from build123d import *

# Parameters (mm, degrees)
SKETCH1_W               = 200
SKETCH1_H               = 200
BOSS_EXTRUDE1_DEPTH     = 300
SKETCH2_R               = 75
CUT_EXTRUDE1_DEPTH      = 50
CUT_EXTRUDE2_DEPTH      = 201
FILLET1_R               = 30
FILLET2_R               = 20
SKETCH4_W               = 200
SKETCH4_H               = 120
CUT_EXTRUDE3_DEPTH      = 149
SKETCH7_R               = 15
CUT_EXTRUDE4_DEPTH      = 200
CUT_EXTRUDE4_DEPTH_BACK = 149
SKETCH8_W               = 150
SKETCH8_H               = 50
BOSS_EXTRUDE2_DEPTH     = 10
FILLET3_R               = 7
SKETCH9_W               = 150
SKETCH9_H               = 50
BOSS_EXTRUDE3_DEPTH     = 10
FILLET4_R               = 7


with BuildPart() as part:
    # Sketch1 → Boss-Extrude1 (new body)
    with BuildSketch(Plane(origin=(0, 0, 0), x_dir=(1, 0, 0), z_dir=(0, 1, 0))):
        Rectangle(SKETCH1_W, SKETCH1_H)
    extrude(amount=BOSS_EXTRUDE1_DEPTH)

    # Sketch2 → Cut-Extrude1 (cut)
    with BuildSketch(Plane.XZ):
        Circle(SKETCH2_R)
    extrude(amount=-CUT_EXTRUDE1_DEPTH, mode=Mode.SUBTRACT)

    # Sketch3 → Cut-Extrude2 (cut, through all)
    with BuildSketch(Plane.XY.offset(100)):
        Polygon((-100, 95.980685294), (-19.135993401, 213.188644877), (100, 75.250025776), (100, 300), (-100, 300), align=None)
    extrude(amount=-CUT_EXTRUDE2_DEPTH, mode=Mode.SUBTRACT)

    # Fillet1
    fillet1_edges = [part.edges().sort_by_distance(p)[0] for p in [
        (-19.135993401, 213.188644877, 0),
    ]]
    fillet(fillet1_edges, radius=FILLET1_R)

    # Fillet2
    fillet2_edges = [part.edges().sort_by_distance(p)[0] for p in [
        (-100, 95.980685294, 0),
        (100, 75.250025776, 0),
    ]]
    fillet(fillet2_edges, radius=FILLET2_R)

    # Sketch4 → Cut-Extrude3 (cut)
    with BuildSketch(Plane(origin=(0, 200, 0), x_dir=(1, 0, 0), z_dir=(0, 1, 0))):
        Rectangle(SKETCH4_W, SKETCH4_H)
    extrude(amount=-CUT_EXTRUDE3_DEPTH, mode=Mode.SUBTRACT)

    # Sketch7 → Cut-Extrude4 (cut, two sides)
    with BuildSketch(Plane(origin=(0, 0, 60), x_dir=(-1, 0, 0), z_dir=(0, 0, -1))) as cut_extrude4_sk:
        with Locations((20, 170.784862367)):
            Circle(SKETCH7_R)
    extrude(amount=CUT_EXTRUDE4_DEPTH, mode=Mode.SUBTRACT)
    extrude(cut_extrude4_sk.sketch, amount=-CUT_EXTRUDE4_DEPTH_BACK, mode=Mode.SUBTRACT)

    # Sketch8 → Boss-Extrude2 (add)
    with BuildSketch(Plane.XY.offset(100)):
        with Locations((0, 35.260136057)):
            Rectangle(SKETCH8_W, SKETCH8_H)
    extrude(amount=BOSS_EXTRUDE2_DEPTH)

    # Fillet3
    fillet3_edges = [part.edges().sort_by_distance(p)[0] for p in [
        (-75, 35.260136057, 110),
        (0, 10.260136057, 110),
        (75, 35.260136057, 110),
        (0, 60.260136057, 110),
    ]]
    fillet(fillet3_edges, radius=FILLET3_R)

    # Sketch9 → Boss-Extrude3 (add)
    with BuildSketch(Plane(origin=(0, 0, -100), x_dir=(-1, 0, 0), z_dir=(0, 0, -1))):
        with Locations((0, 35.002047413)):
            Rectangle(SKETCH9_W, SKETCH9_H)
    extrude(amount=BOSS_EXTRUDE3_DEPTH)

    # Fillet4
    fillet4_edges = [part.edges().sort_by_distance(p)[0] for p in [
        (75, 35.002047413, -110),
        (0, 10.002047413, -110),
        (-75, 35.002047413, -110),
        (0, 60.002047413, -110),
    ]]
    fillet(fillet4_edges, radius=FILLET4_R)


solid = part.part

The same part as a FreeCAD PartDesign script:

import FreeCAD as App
import Part
import Sketcher
from FreeCAD import Vector
Q = App.Units.Quantity


def edges_at(feature, points):
    """Names of the edges that pass closest to the given points."""
    edges = feature.Shape.Edges
    near = lambda p: min(range(len(edges)), key=lambda i: edges[i].distToShape(Part.Vertex(*p))[0])
    return sorted({f"Edge{near(p) + 1}" for p in points})

doc = App.newDocument("Part")
body = doc.addObject("PartDesign::Body", "Body")

# Sketch on XZ plane
sketch1 = body.newObject("Sketcher::SketchObject", "Sketch")
sketch1.AttachmentSupport = (doc.getObject("XZ_Plane"), [""])
sketch1.MapMode = "FlatFace"
sketch1.addGeometry(Part.LineSegment(Vector(-100, -100, 0), Vector(-100, 100, 0)), False)
sketch1.addGeometry(Part.LineSegment(Vector(-100, 100, 0), Vector(100, 100, 0)), False)
sketch1.addGeometry(Part.LineSegment(Vector(100, 100, 0), Vector(100, -100, 0)), False)
sketch1.addGeometry(Part.LineSegment(Vector(100, -100, 0), Vector(-100, -100, 0)), False)
sketch1.addConstraint(Sketcher.Constraint("Coincident", 0, 2, 1, 1))
sketch1.addConstraint(Sketcher.Constraint("Coincident", 1, 2, 2, 1))
sketch1.addConstraint(Sketcher.Constraint("Coincident", 2, 2, 3, 1))
sketch1.addConstraint(Sketcher.Constraint("Coincident", 3, 2, 0, 1))
sketch1.addConstraint(Sketcher.Constraint("Vertical", 0))
sketch1.addConstraint(Sketcher.Constraint("Horizontal", 1))
sketch1.addConstraint(Sketcher.Constraint("Vertical", 2))
sketch1.addConstraint(Sketcher.Constraint("Horizontal", 3))
sketch1.addConstraint(Sketcher.Constraint("Symmetric", 0, 2, 2, 2, -1, 1))
sketch1.addConstraint(Sketcher.Constraint("Equal", 3, 0))
sketch1.addConstraint(Sketcher.Constraint("DistanceX", 1, 1, 1, 2, Q("200 mm")))
pad1 = body.newObject("PartDesign::Pad", "Pad")
pad1.Profile = sketch1
pad1.Length = 300
pad1.Reversed = True

# Sketch on XZ plane
sketch2 = body.newObject("Sketcher::SketchObject", "Sketch001")
sketch2.AttachmentSupport = (doc.getObject("XZ_Plane"), [""])
sketch2.MapMode = "FlatFace"
sketch2.addGeometry(Part.Circle(Vector(0, 0, 0), Vector(0, 0, 1), 75), False)
sketch2.addConstraint(Sketcher.Constraint("Coincident", 0, 3, -1, 1))
sketch2.addConstraint(Sketcher.Constraint("Diameter", 0, Q("150 mm")))
pocket1 = body.newObject("PartDesign::Pocket", "Pocket")
pocket1.Profile = sketch2
pocket1.Length = 50

# Sketch on XY plane
sketch3 = body.newObject("Sketcher::SketchObject", "Sketch002")
sketch3.AttachmentSupport = (doc.getObject("XY_Plane"), [""])
sketch3.MapMode = "FlatFace"
sketch3.AttachmentOffset = App.Placement(Vector(0, 0, 100), App.Rotation())
sketch3.addGeometry(Part.LineSegment(Vector(-100, 96, 0), Vector(-19, 213, 0)), False)
sketch3.addGeometry(Part.LineSegment(Vector(-19, 213, 0), Vector(100, 75, 0)), False)
sketch3.addGeometry(Part.LineSegment(Vector(100, 75, 0), Vector(100, 300, 0)), False)
sketch3.addGeometry(Part.LineSegment(Vector(100, 300, 0), Vector(-100, 300, 0)), False)
sketch3.addGeometry(Part.LineSegment(Vector(-100, 300, 0), Vector(-100, 96, 0)), False)
sketch3.addConstraint(Sketcher.Constraint("Coincident", 0, 2, 1, 1))
sketch3.addConstraint(Sketcher.Constraint("Coincident", 1, 2, 2, 1))
sketch3.addConstraint(Sketcher.Constraint("Coincident", 2, 2, 3, 1))
sketch3.addConstraint(Sketcher.Constraint("Coincident", 3, 2, 4, 1))
sketch3.addConstraint(Sketcher.Constraint("Coincident", 4, 2, 0, 1))
sketch3.addConstraint(Sketcher.Constraint("Vertical", 2))
sketch3.addConstraint(Sketcher.Constraint("Horizontal", 3))
sketch3.addConstraint(Sketcher.Constraint("Vertical", 4))
sketch3.addConstraint(Sketcher.Constraint("DistanceX", 3, 2, 3, 1, Q("200 mm")))
sketch3.addConstraint(Sketcher.Constraint("DistanceX", -1, 1, 1, 2, Q("100 mm")))
sketch3.addConstraint(Sketcher.Constraint("DistanceY", -1, 1, 2, 2, Q("300 mm")))
sketch3.addConstraint(Sketcher.Constraint("DistanceY", 2, 1, 2, 2, Q("224.749974 mm")))
sketch3.addConstraint(Sketcher.Constraint("DistanceY", 4, 2, 4, 1, Q("204.019315 mm")))
sketch3.addConstraint(Sketcher.Constraint("DistanceY", 1, 2, 0, 2, Q("137.938619 mm")))
sketch3.addConstraint(Sketcher.Constraint("Distance", 0, Q("142.396255 mm")))
pocket2 = body.newObject("PartDesign::Pocket", "Pocket001")
pocket2.Profile = sketch3
pocket2.Type = "ThroughAll"
doc.recompute()

fillet = body.newObject("PartDesign::Fillet", "Fillet")
fillet.Base = (pocket2, edges_at(pocket2, [(-19.136, 213.189, 0)]))
fillet.Radius = 30
doc.recompute()

fillet2 = body.newObject("PartDesign::Fillet", "Fillet001")
fillet2.Base = (fillet, edges_at(fillet, [(-100, 95.981, 0), (100, 75.25, 0)]))
fillet2.Radius = 20

# Sketch on XZ plane
sketch4 = body.newObject("Sketcher::SketchObject", "Sketch003")
sketch4.AttachmentSupport = (doc.getObject("XZ_Plane"), [""])
sketch4.MapMode = "FlatFace"
sketch4.AttachmentOffset = App.Placement(Vector(0, 0, -200), App.Rotation())
sketch4.addGeometry(Part.LineSegment(Vector(-100, -60, 0), Vector(-100, 60, 0)), False)
sketch4.addGeometry(Part.LineSegment(Vector(-100, 60, 0), Vector(100, 60, 0)), False)
sketch4.addGeometry(Part.LineSegment(Vector(100, 60, 0), Vector(100, -60, 0)), False)
sketch4.addGeometry(Part.LineSegment(Vector(100, -60, 0), Vector(-100, -60, 0)), False)
sketch4.addConstraint(Sketcher.Constraint("Coincident", 0, 2, 1, 1))
sketch4.addConstraint(Sketcher.Constraint("Coincident", 1, 2, 2, 1))
sketch4.addConstraint(Sketcher.Constraint("Coincident", 2, 2, 3, 1))
sketch4.addConstraint(Sketcher.Constraint("Coincident", 3, 2, 0, 1))
sketch4.addConstraint(Sketcher.Constraint("Vertical", 0))
sketch4.addConstraint(Sketcher.Constraint("Horizontal", 1))
sketch4.addConstraint(Sketcher.Constraint("Vertical", 2))
sketch4.addConstraint(Sketcher.Constraint("Horizontal", 3))
sketch4.addConstraint(Sketcher.Constraint("Symmetric", 0, 2, 2, 2, -1, 1))
sketch4.addConstraint(Sketcher.Constraint("DistanceX", 1, 1, 1, 2, Q("200 mm")))
sketch4.addConstraint(Sketcher.Constraint("DistanceY", 0, 1, 0, 2, Q("120 mm")))
pocket3 = body.newObject("PartDesign::Pocket", "Pocket002")
pocket3.Profile = sketch4
pocket3.Length = 149
pocket3.Reversed = True

# Sketch on XY plane
sketch5 = body.newObject("Sketcher::SketchObject", "Sketch004")
sketch5.AttachmentSupport = (doc.getObject("XY_Plane"), [""])
sketch5.MapMode = "FlatFace"
sketch5.AttachmentOffset = App.Placement(Vector(0, 0, 60), App.Rotation())
sketch5.addGeometry(Part.Circle(Vector(-20, 171, 0), Vector(0, 0, 1), 15), False)
sketch5.addConstraint(Sketcher.Constraint("Diameter", 0, Q("30 mm")))
sketch5.addConstraint(Sketcher.Constraint("DistanceX", 0, 3, -1, 1, Q("20 mm")))
sketch5.addConstraint(Sketcher.Constraint("DistanceY", -1, 1, 0, 3, Q("170.784862 mm")))
pocket4 = body.newObject("PartDesign::Pocket", "Pocket003")
pocket4.Profile = sketch5
pocket4.Type = "ThroughAll"
pocket4.Midplane = True

# Sketch on XY plane
sketch6 = body.newObject("Sketcher::SketchObject", "Sketch005")
sketch6.AttachmentSupport = (doc.getObject("XY_Plane"), [""])
sketch6.MapMode = "FlatFace"
sketch6.AttachmentOffset = App.Placement(Vector(0, 0, 100), App.Rotation())
sketch6.addGeometry(Part.LineSegment(Vector(-75, 60, 0), Vector(-75, 10, 0)), False)
sketch6.addGeometry(Part.LineSegment(Vector(-75, 10, 0), Vector(75, 10, 0)), False)
sketch6.addGeometry(Part.LineSegment(Vector(75, 10, 0), Vector(75, 60, 0)), False)
sketch6.addGeometry(Part.LineSegment(Vector(75, 60, 0), Vector(-75, 60, 0)), False)
sketch6.addConstraint(Sketcher.Constraint("Coincident", 0, 2, 1, 1))
sketch6.addConstraint(Sketcher.Constraint("Coincident", 1, 2, 2, 1))
sketch6.addConstraint(Sketcher.Constraint("Coincident", 2, 2, 3, 1))
sketch6.addConstraint(Sketcher.Constraint("Coincident", 3, 2, 0, 1))
sketch6.addConstraint(Sketcher.Constraint("Vertical", 0))
sketch6.addConstraint(Sketcher.Constraint("Horizontal", 1))
sketch6.addConstraint(Sketcher.Constraint("Vertical", 2))
sketch6.addConstraint(Sketcher.Constraint("Horizontal", 3))
sketch6.addConstraint(Sketcher.Constraint("DistanceX", 1, 1, 1, 2, Q("150 mm")))
sketch6.addConstraint(Sketcher.Constraint("DistanceY", 0, 2, 0, 1, Q("50 mm")))
sketch6.addConstraint(Sketcher.Constraint("DistanceX", 0, 2, -1, 1, Q("75 mm")))
sketch6.addConstraint(Sketcher.Constraint("DistanceY", -1, 1, 0, 2, Q("10.260136 mm")))
pad2 = body.newObject("PartDesign::Pad", "Pad001")
pad2.Profile = sketch6
pad2.Length = 10
doc.recompute()

fillet3 = body.newObject("PartDesign::Fillet", "Fillet002")
fillet3.Base = (pad2, edges_at(pad2, [
    (-75, 35.26, 110),
    (0, 10.26, 110),
    (75, 35.26, 110),
    (0, 60.26, 110),
]))
fillet3.Radius = 7

# Sketch on XY plane
sketch7 = body.newObject("Sketcher::SketchObject", "Sketch006")
sketch7.AttachmentSupport = (doc.getObject("XY_Plane"), [""])
sketch7.MapMode = "FlatFace"
sketch7.AttachmentOffset = App.Placement(Vector(0, 0, -100), App.Rotation())
sketch7.addGeometry(Part.LineSegment(Vector(75, 60, 0), Vector(75, 10, 0)), False)
sketch7.addGeometry(Part.LineSegment(Vector(75, 10, 0), Vector(-75, 10, 0)), False)
sketch7.addGeometry(Part.LineSegment(Vector(-75, 10, 0), Vector(-75, 60, 0)), False)
sketch7.addGeometry(Part.LineSegment(Vector(-75, 60, 0), Vector(75, 60, 0)), False)
sketch7.addConstraint(Sketcher.Constraint("Coincident", 0, 2, 1, 1))
sketch7.addConstraint(Sketcher.Constraint("Coincident", 1, 2, 2, 1))
sketch7.addConstraint(Sketcher.Constraint("Coincident", 2, 2, 3, 1))
sketch7.addConstraint(Sketcher.Constraint("Coincident", 3, 2, 0, 1))
sketch7.addConstraint(Sketcher.Constraint("Vertical", 0))
sketch7.addConstraint(Sketcher.Constraint("Horizontal", 1))
sketch7.addConstraint(Sketcher.Constraint("Vertical", 2))
sketch7.addConstraint(Sketcher.Constraint("Horizontal", 3))
sketch7.addConstraint(Sketcher.Constraint("DistanceX", 1, 2, 1, 1, Q("150 mm")))
sketch7.addConstraint(Sketcher.Constraint("DistanceY", 0, 2, 0, 1, Q("50 mm")))
sketch7.addConstraint(Sketcher.Constraint("DistanceX", -1, 1, 0, 2, Q("75 mm")))
sketch7.addConstraint(Sketcher.Constraint("DistanceY", -1, 1, 0, 2, Q("10.002047 mm")))
pad3 = body.newObject("PartDesign::Pad", "Pad002")
pad3.Profile = sketch7
pad3.Length = 10
pad3.Reversed = True
doc.recompute()

fillet4 = body.newObject("PartDesign::Fillet", "Fillet003")
fillet4.Base = (pad3, edges_at(pad3, [
    (75, 35.002, -110),
    (0, 10.002, -110),
    (-75, 35.002, -110),
    (0, 60.002, -110),
]))
fillet4.Radius = 7

doc.recompute()
